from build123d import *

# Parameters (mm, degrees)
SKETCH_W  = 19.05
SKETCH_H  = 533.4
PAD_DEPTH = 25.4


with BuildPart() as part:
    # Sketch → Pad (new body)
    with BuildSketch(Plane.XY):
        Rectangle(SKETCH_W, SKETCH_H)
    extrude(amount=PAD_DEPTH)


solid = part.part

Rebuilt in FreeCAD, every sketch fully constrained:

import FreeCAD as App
import Part
import Sketcher

V = App.Vector
Q = App.Units.Quantity

doc = App.newDocument("Part")
body = doc.addObject("PartDesign::Body", "Body")

sketch1 = body.newObject("Sketcher::SketchObject", "Sketch")
sketch1.AttachmentSupport = (doc.getObject("XY_Plane"), [""])
sketch1.MapMode = "FlatFace"
sketch1.addGeometry([
    Part.LineSegment(V(-10, 267, 0), V(-10, -267, 0)),
    Part.LineSegment(V(-10, -267, 0), V(10, -267, 0)),
    Part.LineSegment(V(10, -267, 0), V(10, 267, 0)),
    Part.LineSegment(V(10, 267, 0), V(-10, 267, 0)),
], False)
sketch1.addConstraint([
    Sketcher.Constraint("Coincident", 0, 2, 1, 1),
    Sketcher.Constraint("Coincident", 1, 2, 2, 1),
    Sketcher.Constraint("Coincident", 2, 2, 3, 1),
    Sketcher.Constraint("Coincident", 3, 2, 0, 1),
    Sketcher.Constraint("Vertical", 0),
    Sketcher.Constraint("Horizontal", 1),
    Sketcher.Constraint("Vertical", 2),
    Sketcher.Constraint("Horizontal", 3),
    Sketcher.Constraint("Symmetric", 0, 2, 2, 2, -1, 1),
    Sketcher.Constraint("DistanceY", 0, 2, 0, 1, Q("21 in")),
    Sketcher.Constraint("DistanceX", 1, 1, 1, 2, Q("0.75 in")),
])
pad1 = body.newObject("PartDesign::Pad", "Pad")
pad1.Profile = sketch1
pad1.Length = Q("1 in")

doc.recompute()
